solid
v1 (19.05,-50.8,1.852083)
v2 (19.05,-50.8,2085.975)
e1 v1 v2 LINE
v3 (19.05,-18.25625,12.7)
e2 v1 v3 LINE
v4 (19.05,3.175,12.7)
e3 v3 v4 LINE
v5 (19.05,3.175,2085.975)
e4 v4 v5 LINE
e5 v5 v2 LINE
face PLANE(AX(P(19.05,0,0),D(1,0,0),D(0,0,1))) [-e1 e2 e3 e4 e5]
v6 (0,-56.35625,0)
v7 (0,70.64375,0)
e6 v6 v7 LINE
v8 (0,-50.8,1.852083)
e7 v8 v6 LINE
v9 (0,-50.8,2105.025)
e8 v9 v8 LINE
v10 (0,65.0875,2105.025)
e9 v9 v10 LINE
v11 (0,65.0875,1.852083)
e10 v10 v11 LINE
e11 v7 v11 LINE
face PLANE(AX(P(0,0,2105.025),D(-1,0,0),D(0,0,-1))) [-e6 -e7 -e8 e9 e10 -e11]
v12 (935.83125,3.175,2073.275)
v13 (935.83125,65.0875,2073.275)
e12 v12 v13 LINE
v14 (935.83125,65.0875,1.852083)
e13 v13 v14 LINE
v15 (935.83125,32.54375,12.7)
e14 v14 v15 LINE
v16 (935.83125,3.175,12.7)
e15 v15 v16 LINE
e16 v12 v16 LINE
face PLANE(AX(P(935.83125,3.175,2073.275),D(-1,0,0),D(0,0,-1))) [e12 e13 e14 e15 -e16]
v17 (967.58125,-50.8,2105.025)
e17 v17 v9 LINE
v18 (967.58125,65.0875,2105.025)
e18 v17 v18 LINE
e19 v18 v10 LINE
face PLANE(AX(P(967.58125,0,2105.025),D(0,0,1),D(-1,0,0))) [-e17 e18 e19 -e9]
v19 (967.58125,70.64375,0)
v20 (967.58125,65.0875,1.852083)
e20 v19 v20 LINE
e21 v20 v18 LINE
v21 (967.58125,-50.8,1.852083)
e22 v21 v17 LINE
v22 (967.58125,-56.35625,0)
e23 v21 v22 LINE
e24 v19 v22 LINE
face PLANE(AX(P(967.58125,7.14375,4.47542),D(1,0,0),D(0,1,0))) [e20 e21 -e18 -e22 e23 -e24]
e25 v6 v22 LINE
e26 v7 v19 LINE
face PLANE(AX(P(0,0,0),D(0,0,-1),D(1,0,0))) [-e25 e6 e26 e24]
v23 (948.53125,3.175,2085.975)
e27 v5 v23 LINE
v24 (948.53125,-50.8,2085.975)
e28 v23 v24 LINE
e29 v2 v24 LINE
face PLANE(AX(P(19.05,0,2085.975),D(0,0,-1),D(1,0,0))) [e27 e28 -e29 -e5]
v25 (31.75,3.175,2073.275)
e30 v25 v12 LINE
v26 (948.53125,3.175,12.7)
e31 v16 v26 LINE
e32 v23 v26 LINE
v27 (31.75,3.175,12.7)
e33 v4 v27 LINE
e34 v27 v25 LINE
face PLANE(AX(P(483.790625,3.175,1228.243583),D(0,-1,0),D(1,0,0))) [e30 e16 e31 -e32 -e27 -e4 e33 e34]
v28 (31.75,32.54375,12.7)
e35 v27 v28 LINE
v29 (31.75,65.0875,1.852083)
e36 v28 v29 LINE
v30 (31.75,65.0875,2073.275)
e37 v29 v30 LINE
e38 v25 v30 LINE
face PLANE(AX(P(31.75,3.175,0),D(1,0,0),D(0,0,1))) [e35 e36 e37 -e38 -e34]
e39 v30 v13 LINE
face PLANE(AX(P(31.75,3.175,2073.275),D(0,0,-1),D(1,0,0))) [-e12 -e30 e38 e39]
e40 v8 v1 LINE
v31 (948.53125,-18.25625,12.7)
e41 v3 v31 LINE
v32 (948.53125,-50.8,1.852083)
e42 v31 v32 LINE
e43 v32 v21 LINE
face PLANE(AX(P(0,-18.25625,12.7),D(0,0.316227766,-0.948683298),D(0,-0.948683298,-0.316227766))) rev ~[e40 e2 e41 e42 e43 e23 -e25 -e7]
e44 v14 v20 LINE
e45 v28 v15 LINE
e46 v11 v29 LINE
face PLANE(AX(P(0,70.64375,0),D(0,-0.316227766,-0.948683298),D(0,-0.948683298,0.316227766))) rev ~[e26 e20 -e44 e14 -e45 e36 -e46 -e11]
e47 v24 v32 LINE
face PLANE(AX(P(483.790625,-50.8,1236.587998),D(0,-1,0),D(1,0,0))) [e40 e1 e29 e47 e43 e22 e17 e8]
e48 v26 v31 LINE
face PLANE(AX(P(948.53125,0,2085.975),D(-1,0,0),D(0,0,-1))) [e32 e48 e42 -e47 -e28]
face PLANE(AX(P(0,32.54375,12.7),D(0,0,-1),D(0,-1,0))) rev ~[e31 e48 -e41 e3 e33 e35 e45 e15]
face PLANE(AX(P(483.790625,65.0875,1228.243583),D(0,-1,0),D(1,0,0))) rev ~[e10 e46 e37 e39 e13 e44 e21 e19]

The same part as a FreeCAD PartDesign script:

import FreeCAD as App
import Part
import Sketcher
from FreeCAD import Vector
Q = App.Units.Quantity

doc = App.newDocument("Part")
body = doc.addObject("PartDesign::Body", "Body")

# Sketch on XZ plane
sketch1 = body.newObject("Sketcher::SketchObject", "Sketch")
sketch1.AttachmentSupport = (doc.getObject("XZ_Plane"), [""])
sketch1.MapMode = "FlatFace"
sketch1.AttachmentOffset = App.Placement(Vector(0, 0, -0.125 * 25.4), App.Rotation())
sketch1.addGeometry([
    Part.LineSegment(Vector(0, 0, 0), Vector(31.75, 0, 0)),  # 0
    Part.LineSegment(Vector(31.75, 0, 0), Vector(31.75, 2073.275, 0)),  # 1
    Part.LineSegment(Vector(31.75, 2073.275, 0), Vector(935.83125, 2073.275, 0)),  # 2
    Part.LineSegment(Vector(935.83125, 2073.275, 0), Vector(935.83125, 0, 0)),  # 3
    Part.LineSegment(Vector(935.83125, 0, 0), Vector(967.58125, 0, 0)),  # 4
    Part.LineSegment(Vector(967.58125, 0, 0), Vector(967.58125, 2105.025, 0)),  # 5
    Part.LineSegment(Vector(967.58125, 2105.025, 0), Vector(0, 2105.025, 0)),  # 6
    Part.LineSegment(Vector(0, 2105.025, 0), Vector(0, 0, 0)),  # 7
], False)
sketch1.addConstraint([
    Sketcher.Constraint("Coincident", 0, 2, 1, 1),
    Sketcher.Constraint("Coincident", 1, 2, 2, 1),
    Sketcher.Constraint("Coincident", 2, 2, 3, 1),
    Sketcher.Constraint("Coincident", 3, 2, 4, 1),
    Sketcher.Constraint("Coincident", 4, 2, 5, 1),
    Sketcher.Constraint("Coincident", 5, 2, 6, 1),
    Sketcher.Constraint("Coincident", 6, 2, 7, 1),
    Sketcher.Constraint("Coincident", 7, 2, 0, 1),
    Sketcher.Constraint("Horizontal", 0),
    Sketcher.Constraint("Vertical", 1),
    Sketcher.Constraint("Horizontal", 2),
    Sketcher.Constraint("Vertical", 3),
    Sketcher.Constraint("Horizontal", 4),
    Sketcher.Constraint("Vertical", 5),
    Sketcher.Constraint("Horizontal", 6),
    Sketcher.Constraint("Vertical", 7),
    Sketcher.Constraint("Coincident", 7, 2, -1, 1),
    Sketcher.Constraint("PointOnObject", 3, 2, -1),
    Sketcher.Constraint("Equal", 0, 4),
    Sketcher.Constraint("DistanceX", 0, 1, 0, 2, Q("1.25 in")),
    Sketcher.Constraint("DistanceX", 2, 1, 2, 2, Q("35.59375 in")),
    Sketcher.Constraint("DistanceY", 1, 1, 1, 2, Q("81.625 in")),
    Sketcher.Constraint("DistanceY", 5, 1, 5, 2, Q("82.875 in")),
])
pad1 = body.newObject("PartDesign::Pad", "Pad")
pad1.Profile = sketch1
pad1.Length = Q("2.4375 in")
pad1.Reversed = True

# Sketch on XZ plane
sketch2 = body.newObject("Sketcher::SketchObject", "Sketch001")
sketch2.AttachmentSupport = (doc.getObject("XZ_Plane"), [""])
sketch2.MapMode = "FlatFace"
sketch2.addGeometry([
    Part.LineSegment(Vector(0, 0, 0), Vector(19.05, 0, 0)),  # 0
    Part.LineSegment(Vector(19.05, 0, 0), Vector(19.05, 2085.975, 0)),  # 1
    Part.LineSegment(Vector(19.05, 2085.975, 0), Vector(948.53125, 2085.975, 0)),  # 2
    Part.LineSegment(Vector(948.53125, 2085.975, 0), Vector(948.53125, 0, 0)),  # 3
    Part.LineSegment(Vector(948.53125, 0, 0), Vector(967.58125, 0, 0)),  # 4
    Part.LineSegment(Vector(967.58125, 0, 0), Vector(967.58125, 2105.025, 0)),  # 5
    Part.LineSegment(Vector(967.58125, 2105.025, 0), Vector(0, 2105.025, 0)),  # 6
    Part.LineSegment(Vector(0, 2105.025, 0), Vector(0, 0, 0)),  # 7
], False)
sketch2.addConstraint([
    Sketcher.Constraint("Coincident", 0, 2, 1, 1),
    Sketcher.Constraint("Coincident", 1, 2, 2, 1),
    Sketcher.Constraint("Coincident", 2, 2, 3, 1),
    Sketcher.Constraint("Coincident", 3, 2, 4, 1),
    Sketcher.Constraint("Coincident", 4, 2, 5, 1),
    Sketcher.Constraint("Coincident", 5, 2, 6, 1),
    Sketcher.Constraint("Coincident", 6, 2, 7, 1),
    Sketcher.Constraint("Coincident", 7, 2, 0, 1),
    Sketcher.Constraint("Horizontal", 0),
    Sketcher.Constraint("Vertical", 1),
    Sketcher.Constraint("Horizontal", 2),
    Sketcher.Constraint("Vertical", 3),
    Sketcher.Constraint("Horizontal", 4),
    Sketcher.Constraint("Vertical", 5),
    Sketcher.Constraint("Horizontal", 6),
    Sketcher.Constraint("Vertical", 7),
    Sketcher.Constraint("Coincident", 7, 2, -1, 1),
    Sketcher.Constraint("PointOnObject", 3, 2, -1),
    Sketcher.Constraint("Equal", 0, 4),
    Sketcher.Constraint("DistanceX", 0, 1, 0, 2, Q("0.75 in")),
    Sketcher.Constraint("DistanceX", 2, 1, 2, 2, Q("36.59375 in")),
    Sketcher.Constraint("DistanceY", 1, 1, 1, 2, Q("82.125 in")),
    Sketcher.Constraint("DistanceY", 5, 1, 5, 2, Q("82.875 in")),
])
pad2 = body.newObject("PartDesign::Pad", "Pad001")
pad2.Profile = sketch2
pad2.Type = "TwoLengths"
pad2.Length = Q("2 in")
pad2.Length2 = Q("0.125 in")

# Sketch on YZ plane
sketch3 = body.newObject("Sketcher::SketchObject", "Sketch002")
sketch3.AttachmentSupport = (doc.getObject("YZ_Plane"), [""])
sketch3.MapMode = "FlatFace"
sketch3.addGeometry([
    Part.LineSegment(Vector(32.54375, 12.7, 0), Vector(-18.25625, 12.7, 0)),
    Part.LineSegment(Vector(-18.25625, 12.7, 0), Vector(-56.35625, 0, 0)),
    Part.LineSegment(Vector(-56.35625, 0, 0), Vector(70.64375, 0, 0)),
    Part.LineSegment(Vector(70.64375, 0, 0), Vector(32.54375, 12.7, 0)),
], False)
sketch3.addConstraint([
    Sketcher.Constraint("Coincident", 0, 2, 1, 1),
    Sketcher.Constraint("Coincident", 1, 2, 2, 1),
    Sketcher.Constraint("Coincident", 2, 2, 3, 1),
    Sketcher.Constraint("Coincident", 3, 2, 0, 1),
    Sketcher.Constraint("Horizontal", 0),
    Sketcher.Constraint("Horizontal", 2),
    Sketcher.Constraint("PointOnObject", 1, 2, -1),
    Sketcher.Constraint("Equal", 1, 3),
    Sketcher.Constraint("DistanceX", 0, 2, 0, 1, Q("2 in")),
    Sketcher.Constraint("DistanceX", 2, 1, 2, 2, Q("5 in")),
    Sketcher.Constraint("DistanceY", -1, 1, 0, 2, Q("0.5 in")),
    Sketcher.Constraint("DistanceX", 0, 2, -1, 1, Q("0.71875 in")),
])
pad3 = body.newObject("PartDesign::Pad", "Pad002")
pad3.Profile = sketch3
pad3.Type = "UpToLast"

doc.recompute()
